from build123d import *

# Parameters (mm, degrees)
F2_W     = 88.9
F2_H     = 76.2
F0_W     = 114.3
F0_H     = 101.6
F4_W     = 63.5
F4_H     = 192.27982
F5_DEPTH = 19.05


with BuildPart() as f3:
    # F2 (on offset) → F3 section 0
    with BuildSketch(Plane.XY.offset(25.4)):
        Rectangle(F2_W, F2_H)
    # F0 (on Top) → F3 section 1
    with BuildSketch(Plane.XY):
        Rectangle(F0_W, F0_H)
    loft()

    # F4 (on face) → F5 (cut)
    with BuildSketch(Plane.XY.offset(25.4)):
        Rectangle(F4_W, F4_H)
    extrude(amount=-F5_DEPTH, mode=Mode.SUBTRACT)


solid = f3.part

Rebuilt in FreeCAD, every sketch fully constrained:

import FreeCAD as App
import Part
import Sketcher
from FreeCAD import Vector
Q = App.Units.Quantity


def add_polygon(sketch, points):
    """Adds a closed chain of lines whose ends are joined by coincident constraints."""
    first, n = sketch.GeometryCount, len(points)
    for a, b in zip(points, points[1:] + points[:1]):
        sketch.addGeometry(Part.LineSegment(App.Vector(*a, 0), App.Vector(*b, 0)), False)
    for i in range(n):
        sketch.addConstraint(Sketcher.Constraint("Coincident", first + i, 2, first + (i + 1) % n, 1))

doc = App.newDocument("Part")
body = doc.addObject("PartDesign::Body", "Body")

sketch1 = doc.addObject("Sketcher::SketchObject", "Sketch")
body.addObject(sketch1)
sketch1.AttachmentSupport = (doc.XY_Plane, [""])
sketch1.MapMode = "FlatFace"
sketch1.AttachmentOffset = App.Placement(Vector(0, 0, 1 * 25.4), App.Rotation())
add_polygon(sketch1, [(-44, 38), (-44, -38), (44, -38), (44, 38)])
sketch1.addConstraint([
    Sketcher.Constraint("Vertical", 0),
    Sketcher.Constraint("Horizontal", 1),
    Sketcher.Constraint("Vertical", 2),
    Sketcher.Constraint("Horizontal", 3),
    Sketcher.Constraint("Symmetric", 0, 2, 2, 2, -1, 1),
    Sketcher.Constraint("DistanceY", 0, 2, 0, 1, Q("3 in")),
    Sketcher.Constraint("DistanceX", 1, 1, 1, 2, Q("3.5 in")),
])

sketch2 = doc.addObject("Sketcher::SketchObject", "Sketch001")
body.addObject(sketch2)
sketch2.AttachmentSupport = (doc.XY_Plane, [""])
sketch2.MapMode = "FlatFace"
add_polygon(sketch2, [(-57, 51), (-57, -51), (57, -51), (57, 51)])
sketch2.addConstraint([
    Sketcher.Constraint("Vertical", 0),
    Sketcher.Constraint("Horizontal", 1),
    Sketcher.Constraint("Vertical", 2),
    Sketcher.Constraint("Horizontal", 3),
    Sketcher.Constraint("Symmetric", 0, 2, 2, 2, -1, 1),
    Sketcher.Constraint("DistanceY", 0, 2, 0, 1, Q("4 in")),
    Sketcher.Constraint("DistanceX", 1, 1, 1, 2, Q("4.5 in")),
])

additiveloft = doc.addObject("PartDesign::AdditiveLoft", "AdditiveLoft")
body.addObject(additiveloft)
additiveloft.Profile = sketch1
additiveloft.Sections = [sketch2]

sketch3 = doc.addObject("Sketcher::SketchObject", "Sketch002")
body.addObject(sketch3)
sketch3.AttachmentSupport = (doc.XY_Plane, [""])
sketch3.MapMode = "FlatFace"
sketch3.AttachmentOffset = App.Placement(Vector(0, 0, 1 * 25.4), App.Rotation())
add_polygon(sketch3, [(-32, 96), (-32, -96), (32, -96), (32, 96)])
sketch3.addConstraint([
    Sketcher.Constraint("Vertical", 0),
    Sketcher.Constraint("Horizontal", 1),
    Sketcher.Constraint("Vertical", 2),
    Sketcher.Constraint("Horizontal", 3),
    Sketcher.Constraint("Symmetric", 0, 2, 2, 2, -1, 1),
    Sketcher.Constraint("DistanceX", 1, 1, 1, 2, Q("2.5 in")),
    Sketcher.Constraint("DistanceY", 0, 2, 0, 1, 192.27982),
])
pocket1 = doc.addObject("PartDesign::Pocket", "Pocket")
body.addObject(pocket1)
pocket1.Profile = sketch3
pocket1.Length = Q("0.75 in")

doc.recompute()
